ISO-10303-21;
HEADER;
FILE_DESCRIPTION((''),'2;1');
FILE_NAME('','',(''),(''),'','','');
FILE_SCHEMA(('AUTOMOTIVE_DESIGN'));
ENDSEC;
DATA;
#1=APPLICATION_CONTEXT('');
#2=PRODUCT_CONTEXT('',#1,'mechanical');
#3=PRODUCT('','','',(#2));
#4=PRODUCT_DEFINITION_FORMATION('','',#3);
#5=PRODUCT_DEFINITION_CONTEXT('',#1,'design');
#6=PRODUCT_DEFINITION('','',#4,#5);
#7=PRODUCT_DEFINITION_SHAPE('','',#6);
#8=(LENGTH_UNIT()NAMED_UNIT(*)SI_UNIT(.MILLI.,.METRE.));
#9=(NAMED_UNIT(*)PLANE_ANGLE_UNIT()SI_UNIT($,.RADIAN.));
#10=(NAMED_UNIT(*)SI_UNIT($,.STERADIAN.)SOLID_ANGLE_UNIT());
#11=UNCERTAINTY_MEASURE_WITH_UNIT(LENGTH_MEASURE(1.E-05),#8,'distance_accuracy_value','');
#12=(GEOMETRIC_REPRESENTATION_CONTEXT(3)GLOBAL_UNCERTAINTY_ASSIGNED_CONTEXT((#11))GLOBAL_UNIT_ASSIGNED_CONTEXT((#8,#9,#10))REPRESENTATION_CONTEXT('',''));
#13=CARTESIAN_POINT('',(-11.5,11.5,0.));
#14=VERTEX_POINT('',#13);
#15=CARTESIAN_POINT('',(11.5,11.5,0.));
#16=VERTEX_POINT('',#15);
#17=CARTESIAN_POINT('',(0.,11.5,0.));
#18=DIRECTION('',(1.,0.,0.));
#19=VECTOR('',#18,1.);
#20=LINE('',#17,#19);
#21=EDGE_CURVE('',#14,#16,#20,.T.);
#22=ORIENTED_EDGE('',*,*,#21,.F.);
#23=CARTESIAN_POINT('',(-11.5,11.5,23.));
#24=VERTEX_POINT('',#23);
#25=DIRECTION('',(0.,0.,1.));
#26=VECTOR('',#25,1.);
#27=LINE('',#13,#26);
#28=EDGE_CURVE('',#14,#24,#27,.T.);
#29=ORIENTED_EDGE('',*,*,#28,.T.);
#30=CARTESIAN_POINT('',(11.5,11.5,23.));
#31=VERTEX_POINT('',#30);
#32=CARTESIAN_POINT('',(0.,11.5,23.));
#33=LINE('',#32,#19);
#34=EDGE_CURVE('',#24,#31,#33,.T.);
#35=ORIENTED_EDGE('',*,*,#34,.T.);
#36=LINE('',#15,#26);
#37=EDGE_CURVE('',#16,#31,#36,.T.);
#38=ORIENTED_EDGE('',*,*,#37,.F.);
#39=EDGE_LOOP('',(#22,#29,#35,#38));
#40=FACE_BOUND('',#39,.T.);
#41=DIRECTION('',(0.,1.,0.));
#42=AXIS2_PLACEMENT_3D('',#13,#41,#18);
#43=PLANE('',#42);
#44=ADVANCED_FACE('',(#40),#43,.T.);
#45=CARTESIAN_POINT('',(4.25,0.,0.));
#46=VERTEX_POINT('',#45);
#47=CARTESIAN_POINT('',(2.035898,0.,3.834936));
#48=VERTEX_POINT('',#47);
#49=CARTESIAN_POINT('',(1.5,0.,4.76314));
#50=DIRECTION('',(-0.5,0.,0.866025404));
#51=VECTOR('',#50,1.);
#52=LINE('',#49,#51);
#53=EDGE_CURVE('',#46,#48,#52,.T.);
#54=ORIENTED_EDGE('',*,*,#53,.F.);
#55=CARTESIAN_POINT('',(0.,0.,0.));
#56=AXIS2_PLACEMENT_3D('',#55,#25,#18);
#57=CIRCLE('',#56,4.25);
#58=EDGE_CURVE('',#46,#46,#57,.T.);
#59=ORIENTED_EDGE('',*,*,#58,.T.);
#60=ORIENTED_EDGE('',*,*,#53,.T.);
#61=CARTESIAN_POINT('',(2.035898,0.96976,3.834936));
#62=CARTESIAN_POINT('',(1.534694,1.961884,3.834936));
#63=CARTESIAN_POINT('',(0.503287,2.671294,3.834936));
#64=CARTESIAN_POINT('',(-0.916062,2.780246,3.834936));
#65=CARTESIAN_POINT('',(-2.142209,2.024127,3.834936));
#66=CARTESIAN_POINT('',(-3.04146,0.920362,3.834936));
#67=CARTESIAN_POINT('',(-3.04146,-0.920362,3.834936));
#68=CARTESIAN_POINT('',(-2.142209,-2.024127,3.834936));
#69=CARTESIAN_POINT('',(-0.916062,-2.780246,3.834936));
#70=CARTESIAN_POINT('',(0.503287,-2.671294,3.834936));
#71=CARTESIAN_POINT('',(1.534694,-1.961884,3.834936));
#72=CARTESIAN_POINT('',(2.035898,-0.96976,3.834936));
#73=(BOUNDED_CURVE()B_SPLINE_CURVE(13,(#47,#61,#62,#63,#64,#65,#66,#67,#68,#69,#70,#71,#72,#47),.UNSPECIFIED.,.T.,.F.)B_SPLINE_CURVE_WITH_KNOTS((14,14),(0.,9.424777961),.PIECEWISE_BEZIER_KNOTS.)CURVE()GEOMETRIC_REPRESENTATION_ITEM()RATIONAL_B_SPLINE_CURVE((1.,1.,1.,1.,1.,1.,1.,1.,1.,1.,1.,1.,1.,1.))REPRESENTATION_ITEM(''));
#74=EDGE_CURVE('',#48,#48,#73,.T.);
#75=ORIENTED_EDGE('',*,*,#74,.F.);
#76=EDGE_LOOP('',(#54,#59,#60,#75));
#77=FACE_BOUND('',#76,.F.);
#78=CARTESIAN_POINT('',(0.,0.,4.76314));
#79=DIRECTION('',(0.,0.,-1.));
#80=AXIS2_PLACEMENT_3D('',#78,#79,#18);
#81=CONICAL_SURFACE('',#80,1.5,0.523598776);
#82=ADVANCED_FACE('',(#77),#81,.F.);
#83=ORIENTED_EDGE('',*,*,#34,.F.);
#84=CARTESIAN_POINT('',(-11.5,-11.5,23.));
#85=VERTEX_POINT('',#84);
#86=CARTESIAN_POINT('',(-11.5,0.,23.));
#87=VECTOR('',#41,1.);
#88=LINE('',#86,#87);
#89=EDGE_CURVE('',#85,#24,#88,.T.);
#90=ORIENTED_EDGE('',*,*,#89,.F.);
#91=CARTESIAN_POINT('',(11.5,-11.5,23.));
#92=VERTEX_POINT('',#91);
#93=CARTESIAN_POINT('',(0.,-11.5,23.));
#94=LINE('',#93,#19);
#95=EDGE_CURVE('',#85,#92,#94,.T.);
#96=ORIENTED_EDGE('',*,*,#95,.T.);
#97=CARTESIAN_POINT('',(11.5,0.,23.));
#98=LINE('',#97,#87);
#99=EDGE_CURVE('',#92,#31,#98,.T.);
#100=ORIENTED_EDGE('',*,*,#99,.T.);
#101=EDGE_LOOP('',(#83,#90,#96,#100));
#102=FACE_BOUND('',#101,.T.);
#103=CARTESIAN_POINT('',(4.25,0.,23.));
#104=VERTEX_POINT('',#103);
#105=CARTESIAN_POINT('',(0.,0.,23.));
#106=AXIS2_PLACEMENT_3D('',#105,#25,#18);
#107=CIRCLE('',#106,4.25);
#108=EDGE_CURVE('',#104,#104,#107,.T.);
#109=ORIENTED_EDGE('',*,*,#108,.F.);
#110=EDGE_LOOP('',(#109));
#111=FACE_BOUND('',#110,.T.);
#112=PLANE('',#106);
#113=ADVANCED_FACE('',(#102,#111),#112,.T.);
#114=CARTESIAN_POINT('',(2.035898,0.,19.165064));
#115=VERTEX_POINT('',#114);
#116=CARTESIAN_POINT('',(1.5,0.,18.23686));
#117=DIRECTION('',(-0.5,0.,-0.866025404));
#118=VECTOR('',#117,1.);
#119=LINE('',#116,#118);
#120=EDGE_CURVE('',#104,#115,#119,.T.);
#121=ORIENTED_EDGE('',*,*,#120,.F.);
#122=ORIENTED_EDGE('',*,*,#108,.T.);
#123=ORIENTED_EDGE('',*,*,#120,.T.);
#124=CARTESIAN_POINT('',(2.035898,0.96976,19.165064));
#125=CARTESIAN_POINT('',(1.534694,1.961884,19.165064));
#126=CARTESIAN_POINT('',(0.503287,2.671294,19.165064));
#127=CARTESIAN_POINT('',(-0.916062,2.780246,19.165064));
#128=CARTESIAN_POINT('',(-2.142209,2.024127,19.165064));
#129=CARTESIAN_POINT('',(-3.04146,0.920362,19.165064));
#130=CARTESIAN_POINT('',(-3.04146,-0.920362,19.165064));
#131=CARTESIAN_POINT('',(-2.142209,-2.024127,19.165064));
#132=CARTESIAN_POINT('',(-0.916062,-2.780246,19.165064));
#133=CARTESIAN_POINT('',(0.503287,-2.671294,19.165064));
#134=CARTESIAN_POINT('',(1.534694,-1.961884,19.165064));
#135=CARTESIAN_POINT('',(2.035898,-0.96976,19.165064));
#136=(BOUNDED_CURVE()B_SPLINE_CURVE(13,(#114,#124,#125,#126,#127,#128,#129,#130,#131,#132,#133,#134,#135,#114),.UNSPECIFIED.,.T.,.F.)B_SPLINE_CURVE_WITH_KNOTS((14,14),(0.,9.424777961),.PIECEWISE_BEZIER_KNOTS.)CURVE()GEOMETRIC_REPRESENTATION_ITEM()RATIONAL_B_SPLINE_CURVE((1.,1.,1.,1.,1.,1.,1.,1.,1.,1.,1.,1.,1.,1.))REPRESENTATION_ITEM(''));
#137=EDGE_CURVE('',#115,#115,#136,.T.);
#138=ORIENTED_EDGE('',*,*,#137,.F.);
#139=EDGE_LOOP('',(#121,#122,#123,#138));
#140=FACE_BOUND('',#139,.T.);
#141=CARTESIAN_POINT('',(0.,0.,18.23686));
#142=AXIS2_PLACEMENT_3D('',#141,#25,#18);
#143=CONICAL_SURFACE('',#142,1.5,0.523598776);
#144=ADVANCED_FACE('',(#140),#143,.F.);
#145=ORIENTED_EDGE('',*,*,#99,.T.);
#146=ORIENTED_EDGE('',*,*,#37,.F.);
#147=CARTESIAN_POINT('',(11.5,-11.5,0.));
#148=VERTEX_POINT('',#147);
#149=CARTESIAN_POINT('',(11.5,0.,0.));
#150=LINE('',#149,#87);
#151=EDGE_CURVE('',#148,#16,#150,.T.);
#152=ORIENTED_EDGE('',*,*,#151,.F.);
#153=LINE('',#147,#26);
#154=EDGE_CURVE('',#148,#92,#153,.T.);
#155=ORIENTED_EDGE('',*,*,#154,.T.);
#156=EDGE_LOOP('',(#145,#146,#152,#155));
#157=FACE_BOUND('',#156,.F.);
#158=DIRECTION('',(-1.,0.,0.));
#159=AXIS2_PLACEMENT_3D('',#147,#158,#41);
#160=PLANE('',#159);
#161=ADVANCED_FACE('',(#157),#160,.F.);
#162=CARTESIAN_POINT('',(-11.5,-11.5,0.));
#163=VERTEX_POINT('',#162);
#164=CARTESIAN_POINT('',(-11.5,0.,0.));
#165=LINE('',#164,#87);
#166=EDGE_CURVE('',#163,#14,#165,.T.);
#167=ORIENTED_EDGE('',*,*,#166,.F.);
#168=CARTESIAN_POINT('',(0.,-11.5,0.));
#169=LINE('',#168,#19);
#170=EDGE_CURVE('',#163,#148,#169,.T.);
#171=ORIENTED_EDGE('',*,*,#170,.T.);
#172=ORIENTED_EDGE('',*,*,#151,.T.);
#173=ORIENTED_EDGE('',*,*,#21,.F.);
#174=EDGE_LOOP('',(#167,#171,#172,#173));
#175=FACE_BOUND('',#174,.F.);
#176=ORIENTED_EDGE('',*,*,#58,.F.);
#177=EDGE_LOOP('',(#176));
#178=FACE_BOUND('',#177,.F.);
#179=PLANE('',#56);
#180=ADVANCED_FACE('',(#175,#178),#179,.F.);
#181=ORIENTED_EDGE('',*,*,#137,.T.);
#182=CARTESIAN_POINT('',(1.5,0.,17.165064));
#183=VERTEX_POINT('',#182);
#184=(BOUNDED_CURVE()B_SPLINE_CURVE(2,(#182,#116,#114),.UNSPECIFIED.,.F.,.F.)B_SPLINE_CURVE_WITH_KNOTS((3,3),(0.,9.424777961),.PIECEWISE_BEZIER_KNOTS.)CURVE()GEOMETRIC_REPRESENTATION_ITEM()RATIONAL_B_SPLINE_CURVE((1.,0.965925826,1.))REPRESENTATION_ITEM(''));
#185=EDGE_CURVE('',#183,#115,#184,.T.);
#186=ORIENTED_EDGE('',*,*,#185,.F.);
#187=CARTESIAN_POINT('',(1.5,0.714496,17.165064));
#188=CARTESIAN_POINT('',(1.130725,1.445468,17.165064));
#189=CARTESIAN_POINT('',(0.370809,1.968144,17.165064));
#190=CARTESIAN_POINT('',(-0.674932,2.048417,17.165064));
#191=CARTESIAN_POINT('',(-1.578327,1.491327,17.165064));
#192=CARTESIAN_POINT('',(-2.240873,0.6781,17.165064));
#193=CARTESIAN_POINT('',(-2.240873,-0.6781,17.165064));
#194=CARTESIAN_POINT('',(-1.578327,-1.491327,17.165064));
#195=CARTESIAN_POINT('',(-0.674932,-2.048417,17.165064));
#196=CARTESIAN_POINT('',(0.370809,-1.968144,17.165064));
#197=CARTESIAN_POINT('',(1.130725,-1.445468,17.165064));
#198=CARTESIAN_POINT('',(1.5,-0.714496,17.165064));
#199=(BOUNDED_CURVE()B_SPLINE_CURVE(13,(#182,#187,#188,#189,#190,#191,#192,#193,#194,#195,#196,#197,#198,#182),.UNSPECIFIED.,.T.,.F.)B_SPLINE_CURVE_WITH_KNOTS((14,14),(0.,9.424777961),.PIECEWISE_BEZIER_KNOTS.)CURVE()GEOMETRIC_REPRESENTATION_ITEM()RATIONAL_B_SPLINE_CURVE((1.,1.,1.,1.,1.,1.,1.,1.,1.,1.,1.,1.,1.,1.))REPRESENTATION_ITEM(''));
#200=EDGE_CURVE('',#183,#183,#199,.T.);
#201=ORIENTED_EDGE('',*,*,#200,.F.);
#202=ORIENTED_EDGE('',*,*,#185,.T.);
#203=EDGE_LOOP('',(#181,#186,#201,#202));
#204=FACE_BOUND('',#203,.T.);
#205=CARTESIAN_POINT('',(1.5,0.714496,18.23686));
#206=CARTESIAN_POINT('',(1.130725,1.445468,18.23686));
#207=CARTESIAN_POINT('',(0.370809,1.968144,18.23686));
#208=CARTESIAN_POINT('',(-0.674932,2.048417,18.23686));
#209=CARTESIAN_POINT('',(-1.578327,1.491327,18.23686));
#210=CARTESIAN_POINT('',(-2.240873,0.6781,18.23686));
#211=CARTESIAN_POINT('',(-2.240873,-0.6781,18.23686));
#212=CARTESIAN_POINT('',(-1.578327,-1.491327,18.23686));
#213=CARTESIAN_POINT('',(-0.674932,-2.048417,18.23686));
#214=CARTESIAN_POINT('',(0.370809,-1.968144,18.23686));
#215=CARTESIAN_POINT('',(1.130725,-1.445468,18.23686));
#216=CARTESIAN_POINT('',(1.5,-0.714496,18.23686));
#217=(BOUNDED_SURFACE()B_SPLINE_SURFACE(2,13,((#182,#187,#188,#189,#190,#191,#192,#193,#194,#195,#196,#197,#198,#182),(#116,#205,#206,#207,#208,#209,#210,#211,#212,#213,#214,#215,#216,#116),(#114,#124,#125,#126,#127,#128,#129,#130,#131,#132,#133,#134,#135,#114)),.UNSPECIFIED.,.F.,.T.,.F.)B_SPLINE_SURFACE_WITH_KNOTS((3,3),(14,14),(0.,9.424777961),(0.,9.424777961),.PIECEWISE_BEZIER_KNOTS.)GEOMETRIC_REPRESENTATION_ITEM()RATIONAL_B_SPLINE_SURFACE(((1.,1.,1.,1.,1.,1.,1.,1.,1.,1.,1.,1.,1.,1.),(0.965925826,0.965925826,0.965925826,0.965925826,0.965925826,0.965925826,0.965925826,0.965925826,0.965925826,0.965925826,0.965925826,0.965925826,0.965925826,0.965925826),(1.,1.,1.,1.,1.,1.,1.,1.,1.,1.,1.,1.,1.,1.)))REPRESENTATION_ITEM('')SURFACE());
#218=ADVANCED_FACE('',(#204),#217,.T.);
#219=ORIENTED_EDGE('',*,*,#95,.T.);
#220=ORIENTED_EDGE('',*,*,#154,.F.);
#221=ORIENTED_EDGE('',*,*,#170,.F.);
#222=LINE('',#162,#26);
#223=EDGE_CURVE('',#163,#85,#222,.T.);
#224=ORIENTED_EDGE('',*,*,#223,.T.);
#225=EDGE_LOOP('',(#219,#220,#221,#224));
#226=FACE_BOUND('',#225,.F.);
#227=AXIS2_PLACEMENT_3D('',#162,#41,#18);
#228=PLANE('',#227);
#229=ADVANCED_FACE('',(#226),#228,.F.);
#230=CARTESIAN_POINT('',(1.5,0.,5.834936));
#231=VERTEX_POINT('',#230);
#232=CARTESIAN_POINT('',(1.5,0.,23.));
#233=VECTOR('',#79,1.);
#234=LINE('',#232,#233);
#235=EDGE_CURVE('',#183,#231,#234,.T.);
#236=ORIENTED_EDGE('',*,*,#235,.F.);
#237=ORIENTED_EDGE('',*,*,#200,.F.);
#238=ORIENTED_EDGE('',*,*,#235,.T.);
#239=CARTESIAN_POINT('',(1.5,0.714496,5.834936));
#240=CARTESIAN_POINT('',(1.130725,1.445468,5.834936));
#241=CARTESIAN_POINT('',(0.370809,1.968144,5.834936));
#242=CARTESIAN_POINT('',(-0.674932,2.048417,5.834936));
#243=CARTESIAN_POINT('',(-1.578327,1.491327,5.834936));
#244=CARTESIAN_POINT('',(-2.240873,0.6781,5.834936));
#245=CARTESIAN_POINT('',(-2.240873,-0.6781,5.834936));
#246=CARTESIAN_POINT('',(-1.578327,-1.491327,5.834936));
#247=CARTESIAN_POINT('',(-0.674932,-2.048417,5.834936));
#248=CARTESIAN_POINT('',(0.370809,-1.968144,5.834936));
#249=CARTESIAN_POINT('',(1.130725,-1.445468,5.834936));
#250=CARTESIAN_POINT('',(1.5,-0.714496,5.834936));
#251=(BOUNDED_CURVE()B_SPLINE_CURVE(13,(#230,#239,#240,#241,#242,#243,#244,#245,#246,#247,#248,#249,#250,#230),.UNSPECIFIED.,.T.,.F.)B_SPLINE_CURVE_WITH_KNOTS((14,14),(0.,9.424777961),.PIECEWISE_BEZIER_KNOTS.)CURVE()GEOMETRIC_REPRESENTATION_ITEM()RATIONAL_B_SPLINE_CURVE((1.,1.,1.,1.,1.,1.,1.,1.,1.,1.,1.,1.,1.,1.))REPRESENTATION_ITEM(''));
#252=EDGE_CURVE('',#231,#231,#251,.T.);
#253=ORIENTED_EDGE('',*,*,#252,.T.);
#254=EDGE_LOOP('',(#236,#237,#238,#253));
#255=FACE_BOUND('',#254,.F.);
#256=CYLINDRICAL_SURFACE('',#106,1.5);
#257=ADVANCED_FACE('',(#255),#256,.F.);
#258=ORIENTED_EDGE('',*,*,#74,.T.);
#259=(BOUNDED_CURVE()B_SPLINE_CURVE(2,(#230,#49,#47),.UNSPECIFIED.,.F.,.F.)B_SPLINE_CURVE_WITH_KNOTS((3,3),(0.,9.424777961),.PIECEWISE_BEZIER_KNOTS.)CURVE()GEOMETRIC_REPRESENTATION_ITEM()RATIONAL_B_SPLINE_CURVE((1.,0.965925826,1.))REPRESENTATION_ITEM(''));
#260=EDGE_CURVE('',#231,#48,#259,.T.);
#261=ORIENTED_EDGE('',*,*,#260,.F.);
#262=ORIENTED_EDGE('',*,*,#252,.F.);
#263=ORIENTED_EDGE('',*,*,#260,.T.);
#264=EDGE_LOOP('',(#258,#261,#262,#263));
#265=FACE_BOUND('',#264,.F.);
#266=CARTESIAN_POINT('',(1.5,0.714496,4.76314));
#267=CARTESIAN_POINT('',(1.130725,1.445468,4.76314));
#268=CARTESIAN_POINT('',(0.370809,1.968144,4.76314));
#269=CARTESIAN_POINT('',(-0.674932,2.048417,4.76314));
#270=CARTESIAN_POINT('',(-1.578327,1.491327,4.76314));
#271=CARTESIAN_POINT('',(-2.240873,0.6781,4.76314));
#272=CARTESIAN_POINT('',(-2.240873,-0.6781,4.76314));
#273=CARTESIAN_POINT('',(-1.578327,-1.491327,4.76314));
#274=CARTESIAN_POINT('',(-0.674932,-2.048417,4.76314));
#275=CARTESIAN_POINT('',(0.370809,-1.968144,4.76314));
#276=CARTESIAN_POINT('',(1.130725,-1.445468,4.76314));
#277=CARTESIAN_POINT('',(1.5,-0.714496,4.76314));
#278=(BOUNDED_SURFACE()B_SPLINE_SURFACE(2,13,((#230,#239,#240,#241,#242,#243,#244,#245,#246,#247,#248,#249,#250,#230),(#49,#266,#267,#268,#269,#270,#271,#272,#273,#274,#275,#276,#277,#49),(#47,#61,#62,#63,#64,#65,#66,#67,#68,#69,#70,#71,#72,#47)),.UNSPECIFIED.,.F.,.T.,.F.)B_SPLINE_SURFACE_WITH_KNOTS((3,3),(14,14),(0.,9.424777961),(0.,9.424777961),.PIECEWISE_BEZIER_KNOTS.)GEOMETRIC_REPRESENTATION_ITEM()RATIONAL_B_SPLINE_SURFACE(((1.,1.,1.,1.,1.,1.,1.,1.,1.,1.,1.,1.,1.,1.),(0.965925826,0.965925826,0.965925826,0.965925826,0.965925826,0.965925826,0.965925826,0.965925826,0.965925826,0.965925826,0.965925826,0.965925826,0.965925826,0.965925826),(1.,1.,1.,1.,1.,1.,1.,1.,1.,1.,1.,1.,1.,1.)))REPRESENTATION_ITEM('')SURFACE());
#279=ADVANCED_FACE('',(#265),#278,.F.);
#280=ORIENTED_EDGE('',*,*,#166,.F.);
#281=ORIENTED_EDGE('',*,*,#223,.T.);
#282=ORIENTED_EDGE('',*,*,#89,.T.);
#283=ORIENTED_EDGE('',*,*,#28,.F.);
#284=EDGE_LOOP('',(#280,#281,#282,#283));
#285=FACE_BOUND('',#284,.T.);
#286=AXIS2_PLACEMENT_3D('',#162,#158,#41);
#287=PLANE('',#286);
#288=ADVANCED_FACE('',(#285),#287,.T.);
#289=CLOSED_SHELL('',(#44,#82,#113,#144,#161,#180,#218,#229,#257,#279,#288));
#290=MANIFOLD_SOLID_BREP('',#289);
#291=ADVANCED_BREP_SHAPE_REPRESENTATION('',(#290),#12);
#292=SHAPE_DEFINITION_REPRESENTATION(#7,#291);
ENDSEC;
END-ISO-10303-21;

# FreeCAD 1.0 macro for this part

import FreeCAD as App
import Part
import Sketcher
from FreeCAD import Vector


def edges_at(feature, points):
    """Names of the edges that pass closest to the given points."""
    edges = feature.Shape.Edges
    near = lambda p: min(range(len(edges)), key=lambda i: edges[i].distToShape(Part.Vertex(*p))[0])
    return sorted({f"Edge{near(p) + 1}" for p in points})

doc = App.newDocument("Part")
body = doc.addObject("PartDesign::Body", "Body")

# Sketch on XY plane
sketch1 = doc.addObject("Sketcher::SketchObject", "Sketch")
body.addObject(sketch1)
sketch1.AttachmentSupport = (doc.XY_Plane, [""])
sketch1.MapMode = "FlatFace"
sketch1.addGeometry([
    Part.LineSegment(Vector(-11.5, 11.5, 0), Vector(-11.5, -11.5, 0)),
    Part.LineSegment(Vector(-11.5, -11.5, 0), Vector(11.5, -11.5, 0)),
    Part.LineSegment(Vector(11.5, -11.5, 0), Vector(11.5, 11.5, 0)),
    Part.LineSegment(Vector(11.5, 11.5, 0), Vector(-11.5, 11.5, 0)),
], False)
sketch1.addConstraint([
    Sketcher.Constraint("Coincident", 0, 2, 1, 1),
    Sketcher.Constraint("Coincident", 1, 2, 2, 1),
    Sketcher.Constraint("Coincident", 2, 2, 3, 1),
    Sketcher.Constraint("Coincident", 3, 2, 0, 1),
    Sketcher.Constraint("Vertical", 0),
    Sketcher.Constraint("Horizontal", 1),
    Sketcher.Constraint("Vertical", 2),
    Sketcher.Constraint("Horizontal", 3),
    Sketcher.Constraint("Symmetric", 0, 2, 2, 2, -1, 1),
    Sketcher.Constraint("Equal", 3, 0),
    Sketcher.Constraint("DistanceX", 1, 1, 1, 2, 23.0),
])
pad1 = doc.addObject("PartDesign::Pad", "Pad")
body.addObject(pad1)
pad1.Profile = sketch1
pad1.Length = 23

# Sketch on XY plane
sketch2 = doc.addObject("Sketcher::SketchObject", "Sketch001")
body.addObject(sketch2)
sketch2.AttachmentSupport = (doc.XY_Plane, [""])
sketch2.MapMode = "FlatFace"
sketch2.AttachmentOffset = App.Placement(Vector(0, 0, 23), App.Rotation())
sketch2.addGeometry(Part.Circle(Vector(0, 0, 0), Vector(0, 0, 1), 1.5), False)
sketch2.addConstraint([
    Sketcher.Constraint("Coincident", 0, 3, -1, 1),
    Sketcher.Constraint("Diameter", 0, 3.0),
])
pocket1 = doc.addObject("PartDesign::Pocket", "Pocket")
body.addObject(pocket1)
pocket1.Profile = sketch2
pocket1.Type = "ThroughAll"
doc.recompute()

chamfer = doc.addObject("PartDesign::Chamfer", "Chamfer")
body.addObject(chamfer)
chamfer.Base = (pocket1, edges_at(pocket1, [(-1.5, 0, 23)]))
chamfer.ChamferType = "Distance and Angle"
chamfer.Size = 2.75
chamfer.Angle = 60
doc.recompute()

chamfer2 = doc.addObject("PartDesign::Chamfer", "Chamfer001")
body.addObject(chamfer2)
chamfer2.Base = (chamfer, edges_at(chamfer, [(-1.5, 0, 0)]))
chamfer2.ChamferType = "Distance and Angle"
chamfer2.Size = 2.75
chamfer2.Angle = 60
chamfer2.FlipDirection = True
doc.recompute()

fillet = doc.addObject("PartDesign::Fillet", "Fillet")
body.addObject(fillet)
fillet.Base = (chamfer2, edges_at(chamfer2, [(-1.5, 0, 4.763), (-1.5, 0, 18.237)]))
fillet.Radius = 4

doc.recompute()
